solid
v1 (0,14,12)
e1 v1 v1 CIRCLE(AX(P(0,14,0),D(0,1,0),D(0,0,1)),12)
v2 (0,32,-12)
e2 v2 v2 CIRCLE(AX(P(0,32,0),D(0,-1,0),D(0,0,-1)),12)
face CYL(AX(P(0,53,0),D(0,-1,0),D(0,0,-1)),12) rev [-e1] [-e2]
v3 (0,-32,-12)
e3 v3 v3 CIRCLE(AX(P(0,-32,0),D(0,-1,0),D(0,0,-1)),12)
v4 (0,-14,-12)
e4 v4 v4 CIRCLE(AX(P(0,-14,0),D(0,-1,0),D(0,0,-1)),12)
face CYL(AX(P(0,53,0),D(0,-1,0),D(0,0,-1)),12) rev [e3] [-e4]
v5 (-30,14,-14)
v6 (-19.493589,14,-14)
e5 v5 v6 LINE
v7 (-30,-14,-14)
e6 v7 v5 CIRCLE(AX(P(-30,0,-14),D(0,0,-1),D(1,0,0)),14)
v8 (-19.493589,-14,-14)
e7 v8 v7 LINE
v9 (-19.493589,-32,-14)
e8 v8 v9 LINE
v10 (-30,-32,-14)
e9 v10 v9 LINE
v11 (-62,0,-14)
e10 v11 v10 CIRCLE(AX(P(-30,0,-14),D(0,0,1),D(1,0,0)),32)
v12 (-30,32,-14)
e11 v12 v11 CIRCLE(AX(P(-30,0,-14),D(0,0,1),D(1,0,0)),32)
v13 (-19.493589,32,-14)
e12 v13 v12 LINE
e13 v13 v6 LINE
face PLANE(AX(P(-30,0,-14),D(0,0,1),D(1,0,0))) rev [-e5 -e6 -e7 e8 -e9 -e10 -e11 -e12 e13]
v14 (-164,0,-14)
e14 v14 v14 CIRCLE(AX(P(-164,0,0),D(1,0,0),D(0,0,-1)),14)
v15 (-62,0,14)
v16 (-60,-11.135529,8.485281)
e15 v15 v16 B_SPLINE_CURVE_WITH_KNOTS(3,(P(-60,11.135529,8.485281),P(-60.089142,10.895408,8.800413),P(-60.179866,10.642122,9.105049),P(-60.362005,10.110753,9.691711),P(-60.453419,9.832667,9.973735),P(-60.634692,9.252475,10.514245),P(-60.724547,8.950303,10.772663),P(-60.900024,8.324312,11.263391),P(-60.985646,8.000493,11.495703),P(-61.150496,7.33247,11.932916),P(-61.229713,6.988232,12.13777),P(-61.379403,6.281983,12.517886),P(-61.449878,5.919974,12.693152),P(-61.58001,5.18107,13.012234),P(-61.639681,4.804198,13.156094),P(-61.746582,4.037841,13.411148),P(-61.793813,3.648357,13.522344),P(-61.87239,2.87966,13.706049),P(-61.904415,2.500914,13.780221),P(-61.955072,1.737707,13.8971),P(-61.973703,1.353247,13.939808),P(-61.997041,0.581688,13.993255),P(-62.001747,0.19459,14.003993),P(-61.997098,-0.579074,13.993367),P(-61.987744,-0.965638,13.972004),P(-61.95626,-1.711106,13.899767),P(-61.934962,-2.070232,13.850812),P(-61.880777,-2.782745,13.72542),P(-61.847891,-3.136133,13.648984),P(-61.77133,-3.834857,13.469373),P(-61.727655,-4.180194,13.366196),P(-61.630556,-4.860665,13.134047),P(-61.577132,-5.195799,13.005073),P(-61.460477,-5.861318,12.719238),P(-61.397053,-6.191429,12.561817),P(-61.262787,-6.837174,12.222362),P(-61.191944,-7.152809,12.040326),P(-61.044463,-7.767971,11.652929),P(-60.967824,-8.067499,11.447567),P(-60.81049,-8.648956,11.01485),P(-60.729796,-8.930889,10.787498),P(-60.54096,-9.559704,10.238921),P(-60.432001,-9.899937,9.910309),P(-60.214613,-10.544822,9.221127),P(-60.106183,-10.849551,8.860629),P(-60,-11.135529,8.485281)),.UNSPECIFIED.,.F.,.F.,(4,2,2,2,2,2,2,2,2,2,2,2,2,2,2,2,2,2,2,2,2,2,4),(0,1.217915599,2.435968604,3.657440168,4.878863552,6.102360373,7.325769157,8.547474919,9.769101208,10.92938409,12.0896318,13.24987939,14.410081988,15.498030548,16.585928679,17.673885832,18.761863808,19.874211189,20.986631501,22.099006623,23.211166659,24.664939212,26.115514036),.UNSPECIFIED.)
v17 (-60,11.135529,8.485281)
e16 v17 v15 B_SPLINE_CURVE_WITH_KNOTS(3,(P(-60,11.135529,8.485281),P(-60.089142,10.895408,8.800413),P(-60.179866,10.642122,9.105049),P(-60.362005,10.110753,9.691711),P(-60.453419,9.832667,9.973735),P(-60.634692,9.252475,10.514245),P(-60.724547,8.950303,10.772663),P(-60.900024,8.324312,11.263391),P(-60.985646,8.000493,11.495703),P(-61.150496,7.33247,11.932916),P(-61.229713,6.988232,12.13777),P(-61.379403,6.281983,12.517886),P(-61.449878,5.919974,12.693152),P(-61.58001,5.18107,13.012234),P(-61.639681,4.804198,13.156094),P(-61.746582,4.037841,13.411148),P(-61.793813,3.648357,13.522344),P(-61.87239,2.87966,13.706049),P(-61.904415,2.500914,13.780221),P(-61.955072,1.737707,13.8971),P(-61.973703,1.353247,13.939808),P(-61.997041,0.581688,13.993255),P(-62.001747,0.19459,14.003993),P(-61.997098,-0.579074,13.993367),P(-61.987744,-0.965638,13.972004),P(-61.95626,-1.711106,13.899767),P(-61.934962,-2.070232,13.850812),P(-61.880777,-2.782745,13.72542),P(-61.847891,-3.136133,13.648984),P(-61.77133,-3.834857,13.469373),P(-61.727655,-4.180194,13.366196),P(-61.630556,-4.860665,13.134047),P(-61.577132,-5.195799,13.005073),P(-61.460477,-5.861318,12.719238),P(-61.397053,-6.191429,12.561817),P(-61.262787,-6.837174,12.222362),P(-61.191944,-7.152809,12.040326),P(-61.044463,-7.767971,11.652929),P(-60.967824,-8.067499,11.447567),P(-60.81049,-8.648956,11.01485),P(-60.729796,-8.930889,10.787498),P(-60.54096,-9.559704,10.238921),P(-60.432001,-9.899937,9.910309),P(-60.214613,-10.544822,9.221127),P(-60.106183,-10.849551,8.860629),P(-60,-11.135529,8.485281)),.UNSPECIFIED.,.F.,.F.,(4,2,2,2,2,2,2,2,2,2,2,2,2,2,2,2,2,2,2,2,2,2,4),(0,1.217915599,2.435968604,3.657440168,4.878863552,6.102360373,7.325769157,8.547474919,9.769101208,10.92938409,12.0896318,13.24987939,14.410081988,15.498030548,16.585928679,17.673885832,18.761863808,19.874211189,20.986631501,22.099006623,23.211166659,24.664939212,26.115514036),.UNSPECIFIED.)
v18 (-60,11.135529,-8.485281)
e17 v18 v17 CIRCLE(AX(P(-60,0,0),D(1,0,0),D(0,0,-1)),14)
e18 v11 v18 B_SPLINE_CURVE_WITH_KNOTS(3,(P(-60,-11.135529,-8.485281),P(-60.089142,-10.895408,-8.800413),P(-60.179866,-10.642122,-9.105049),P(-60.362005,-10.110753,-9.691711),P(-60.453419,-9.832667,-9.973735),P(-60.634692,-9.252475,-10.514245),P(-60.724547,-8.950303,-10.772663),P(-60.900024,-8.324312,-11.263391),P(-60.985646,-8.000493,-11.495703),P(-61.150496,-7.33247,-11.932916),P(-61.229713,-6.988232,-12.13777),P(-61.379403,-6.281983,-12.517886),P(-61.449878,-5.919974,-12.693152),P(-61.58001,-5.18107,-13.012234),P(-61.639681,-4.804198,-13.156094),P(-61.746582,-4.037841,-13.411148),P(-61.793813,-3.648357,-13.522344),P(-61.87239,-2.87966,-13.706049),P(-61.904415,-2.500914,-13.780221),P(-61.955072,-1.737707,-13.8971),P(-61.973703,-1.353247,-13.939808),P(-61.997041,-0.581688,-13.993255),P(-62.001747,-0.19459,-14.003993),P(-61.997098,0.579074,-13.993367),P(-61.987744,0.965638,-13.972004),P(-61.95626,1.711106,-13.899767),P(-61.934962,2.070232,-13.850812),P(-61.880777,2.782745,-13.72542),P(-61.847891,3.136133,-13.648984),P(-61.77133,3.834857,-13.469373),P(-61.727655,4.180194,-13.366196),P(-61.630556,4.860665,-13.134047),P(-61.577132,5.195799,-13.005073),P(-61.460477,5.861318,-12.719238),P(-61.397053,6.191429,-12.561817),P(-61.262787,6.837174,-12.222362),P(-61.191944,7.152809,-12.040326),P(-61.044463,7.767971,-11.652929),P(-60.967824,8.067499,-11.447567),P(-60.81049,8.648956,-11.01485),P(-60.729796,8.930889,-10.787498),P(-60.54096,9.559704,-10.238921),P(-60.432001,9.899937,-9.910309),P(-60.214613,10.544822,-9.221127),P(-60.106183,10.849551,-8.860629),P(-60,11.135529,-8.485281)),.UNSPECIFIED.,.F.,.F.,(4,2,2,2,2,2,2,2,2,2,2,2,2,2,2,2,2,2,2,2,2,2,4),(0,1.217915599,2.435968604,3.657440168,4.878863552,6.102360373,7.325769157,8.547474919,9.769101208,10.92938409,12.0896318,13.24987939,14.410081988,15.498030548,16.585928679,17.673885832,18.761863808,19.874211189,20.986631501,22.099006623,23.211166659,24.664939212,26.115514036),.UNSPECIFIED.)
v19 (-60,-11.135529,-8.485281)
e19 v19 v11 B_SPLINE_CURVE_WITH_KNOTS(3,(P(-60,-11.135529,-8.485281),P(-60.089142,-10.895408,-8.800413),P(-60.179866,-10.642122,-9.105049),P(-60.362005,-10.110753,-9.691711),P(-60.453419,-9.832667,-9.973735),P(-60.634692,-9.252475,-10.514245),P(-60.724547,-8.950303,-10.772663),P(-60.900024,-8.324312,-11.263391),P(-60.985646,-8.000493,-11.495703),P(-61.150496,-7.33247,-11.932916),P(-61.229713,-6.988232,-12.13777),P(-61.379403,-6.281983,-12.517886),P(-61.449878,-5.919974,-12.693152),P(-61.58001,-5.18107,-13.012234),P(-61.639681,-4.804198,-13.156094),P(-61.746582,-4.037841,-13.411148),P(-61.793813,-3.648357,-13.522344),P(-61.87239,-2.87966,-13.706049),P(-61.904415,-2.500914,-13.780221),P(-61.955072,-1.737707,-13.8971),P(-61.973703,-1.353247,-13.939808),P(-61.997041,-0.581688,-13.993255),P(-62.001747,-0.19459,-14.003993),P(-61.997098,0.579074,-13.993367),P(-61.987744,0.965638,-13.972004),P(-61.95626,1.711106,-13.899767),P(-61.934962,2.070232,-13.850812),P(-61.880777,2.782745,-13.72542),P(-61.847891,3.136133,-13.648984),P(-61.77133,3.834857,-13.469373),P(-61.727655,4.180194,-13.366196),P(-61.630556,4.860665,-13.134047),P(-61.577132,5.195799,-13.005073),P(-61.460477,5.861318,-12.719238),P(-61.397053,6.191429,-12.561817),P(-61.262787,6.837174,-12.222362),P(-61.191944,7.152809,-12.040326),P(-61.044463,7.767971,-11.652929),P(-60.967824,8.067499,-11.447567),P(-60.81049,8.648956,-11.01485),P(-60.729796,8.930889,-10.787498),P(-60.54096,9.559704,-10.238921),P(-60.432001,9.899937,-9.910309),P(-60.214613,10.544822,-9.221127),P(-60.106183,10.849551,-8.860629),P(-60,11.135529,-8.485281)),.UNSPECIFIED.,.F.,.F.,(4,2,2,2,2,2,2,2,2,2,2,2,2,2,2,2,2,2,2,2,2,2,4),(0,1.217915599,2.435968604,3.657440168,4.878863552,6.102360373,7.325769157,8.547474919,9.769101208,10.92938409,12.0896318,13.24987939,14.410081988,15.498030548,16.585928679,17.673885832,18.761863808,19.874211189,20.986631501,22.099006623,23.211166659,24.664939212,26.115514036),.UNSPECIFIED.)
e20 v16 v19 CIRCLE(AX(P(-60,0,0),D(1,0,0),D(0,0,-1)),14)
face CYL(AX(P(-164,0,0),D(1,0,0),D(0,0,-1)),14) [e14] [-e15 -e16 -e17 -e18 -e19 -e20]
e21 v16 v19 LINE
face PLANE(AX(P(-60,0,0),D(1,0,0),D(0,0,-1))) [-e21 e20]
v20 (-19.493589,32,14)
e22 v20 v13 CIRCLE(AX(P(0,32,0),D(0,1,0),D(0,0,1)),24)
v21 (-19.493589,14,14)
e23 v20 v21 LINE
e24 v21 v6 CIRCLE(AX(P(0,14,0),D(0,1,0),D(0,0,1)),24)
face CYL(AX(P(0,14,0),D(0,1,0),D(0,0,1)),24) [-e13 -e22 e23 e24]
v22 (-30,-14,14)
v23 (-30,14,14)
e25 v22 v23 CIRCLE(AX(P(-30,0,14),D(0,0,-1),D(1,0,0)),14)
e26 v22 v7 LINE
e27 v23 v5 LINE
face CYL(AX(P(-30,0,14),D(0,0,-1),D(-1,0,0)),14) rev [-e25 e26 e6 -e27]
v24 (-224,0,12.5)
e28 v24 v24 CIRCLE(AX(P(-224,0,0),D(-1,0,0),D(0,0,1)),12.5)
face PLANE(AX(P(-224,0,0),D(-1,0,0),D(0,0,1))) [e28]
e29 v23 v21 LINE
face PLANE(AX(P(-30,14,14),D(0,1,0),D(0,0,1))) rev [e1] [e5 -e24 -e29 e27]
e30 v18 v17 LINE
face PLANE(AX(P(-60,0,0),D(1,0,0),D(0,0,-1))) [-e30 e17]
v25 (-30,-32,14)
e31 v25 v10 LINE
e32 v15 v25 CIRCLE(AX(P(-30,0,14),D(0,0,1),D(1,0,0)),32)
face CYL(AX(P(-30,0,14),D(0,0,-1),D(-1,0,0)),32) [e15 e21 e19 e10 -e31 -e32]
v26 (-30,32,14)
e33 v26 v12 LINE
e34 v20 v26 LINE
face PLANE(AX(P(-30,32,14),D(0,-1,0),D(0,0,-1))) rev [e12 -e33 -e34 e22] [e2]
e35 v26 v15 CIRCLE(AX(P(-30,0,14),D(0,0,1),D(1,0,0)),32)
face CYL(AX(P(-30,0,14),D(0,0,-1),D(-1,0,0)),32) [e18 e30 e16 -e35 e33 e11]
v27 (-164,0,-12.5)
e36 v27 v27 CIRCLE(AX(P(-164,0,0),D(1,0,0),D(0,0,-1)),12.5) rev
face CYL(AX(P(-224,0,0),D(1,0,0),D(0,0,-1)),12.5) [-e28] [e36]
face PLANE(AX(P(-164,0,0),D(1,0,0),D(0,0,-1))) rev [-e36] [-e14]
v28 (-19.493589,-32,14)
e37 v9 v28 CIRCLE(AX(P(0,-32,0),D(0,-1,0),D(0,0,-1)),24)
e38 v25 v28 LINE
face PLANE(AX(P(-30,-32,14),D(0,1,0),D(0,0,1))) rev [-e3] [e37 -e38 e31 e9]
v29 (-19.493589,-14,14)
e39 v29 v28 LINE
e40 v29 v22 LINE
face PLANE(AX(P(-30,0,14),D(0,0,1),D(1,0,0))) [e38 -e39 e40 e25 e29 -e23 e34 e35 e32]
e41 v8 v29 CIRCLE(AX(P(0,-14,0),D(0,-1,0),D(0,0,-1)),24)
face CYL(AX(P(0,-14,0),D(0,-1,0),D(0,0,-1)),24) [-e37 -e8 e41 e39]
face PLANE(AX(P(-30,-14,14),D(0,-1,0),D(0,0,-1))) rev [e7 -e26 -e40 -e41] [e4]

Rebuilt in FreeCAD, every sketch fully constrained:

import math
import FreeCAD as App
import Part
import Sketcher
from FreeCAD import Vector
Q = App.Units.Quantity

doc = App.newDocument("Part")
body = doc.addObject("PartDesign::Body", "Body")

# Sketch on XY plane
sketch1 = doc.addObject("Sketcher::SketchObject", "Sketch")
body.addObject(sketch1)
sketch1.AttachmentSupport = (doc.XY_Plane, [""])
sketch1.MapMode = "FlatFace"
sketch1.addGeometry([
    Part.LineSegment(Vector(30, 14, 0), Vector(30, 32, 0)),  # 0
    Part.LineSegment(Vector(30, 32, 0), Vector(-30, 32, 0)),  # 1
    Part.ArcOfCircle(Part.Circle(Vector(-30, 0, 0), Vector(0, 0, 1), 32), math.radians(90), math.radians(270)),  # 2
    Part.LineSegment(Vector(-30, -32, 0), Vector(30, -32, 0)),  # 3
    Part.LineSegment(Vector(30, -32, 0), Vector(30, -14, 0)),  # 4
    Part.LineSegment(Vector(30, -14, 0), Vector(-30, -14, 0)),  # 5
    Part.ArcOfCircle(Part.Circle(Vector(-30, 0, 0), Vector(0, 0, 1), 14), math.radians(90), math.radians(270)),  # 6
    Part.LineSegment(Vector(-30, 14, 0), Vector(30, 14, 0)),  # 7
], False)
sketch1.addConstraint([
    Sketcher.Constraint("Coincident", 0, 2, 1, 1),
    Sketcher.Constraint("Tangent", 1, 2, 2, 1),
    Sketcher.Constraint("Tangent", 2, 2, 3, 1),
    Sketcher.Constraint("Coincident", 3, 2, 4, 1),
    Sketcher.Constraint("Coincident", 4, 2, 5, 1),
    Sketcher.Constraint("Tangent", 5, 2, 6, 2),
    Sketcher.Constraint("Tangent", 6, 1, 7, 1),
    Sketcher.Constraint("Coincident", 7, 2, 0, 1),
    Sketcher.Constraint("Vertical", 0),
    Sketcher.Constraint("Horizontal", 1),
    Sketcher.Constraint("Horizontal", 3),
    Sketcher.Constraint("Vertical", 4),
    Sketcher.Constraint("Horizontal", 5),
    Sketcher.Constraint("Horizontal", 7),
    Sketcher.Constraint("Coincident", 6, 3, 2, 3),
    Sketcher.Constraint("Symmetric", 0, 2, 2, 2, -1, 1),
    Sketcher.Constraint("Vertical", 0, 2, 3, 2),
    Sketcher.Constraint("Radius", 2, Q("32 mm")),
    Sketcher.Constraint("Radius", 6, Q("14 mm")),
    Sketcher.Constraint("DistanceX", 1, 2, 1, 1, Q("60 mm")),
])
pad1 = doc.addObject("PartDesign::Pad", "Pad")
body.addObject(pad1)
pad1.Profile = sketch1
pad1.Length = 28
pad1.Midplane = True

# Sketch on YZ plane
sketch2 = doc.addObject("Sketcher::SketchObject", "Sketch001")
body.addObject(sketch2)
sketch2.AttachmentSupport = (doc.YZ_Plane, [""])
sketch2.MapMode = "FlatFace"
sketch2.AttachmentOffset = App.Placement(Vector(0, 0, -60), App.Rotation())
sketch2.addGeometry(Part.Circle(Vector(0, 0, 0), Vector(0, 0, 1), 14), False)
sketch2.addConstraint([
    Sketcher.Constraint("Coincident", 0, 3, -1, 1),
    Sketcher.Constraint("Diameter", 0, Q("28 mm")),
])
pad2 = doc.addObject("PartDesign::Pad", "Pad001")
body.addObject(pad2)
pad2.Profile = sketch2
pad2.Length = 104
pad2.Reversed = True

# Sketch on YZ plane
sketch3 = doc.addObject("Sketcher::SketchObject", "Sketch002")
body.addObject(sketch3)
sketch3.AttachmentSupport = (doc.YZ_Plane, [""])
sketch3.MapMode = "FlatFace"
sketch3.AttachmentOffset = App.Placement(Vector(0, 0, -164), App.Rotation())
sketch3.addGeometry(Part.Circle(Vector(0, 0, 0), Vector(0, 0, 1), 12), False)
sketch3.addConstraint([
    Sketcher.Constraint("Coincident", 0, 3, -1, 1),
    Sketcher.Constraint("Diameter", 0, Q("25 mm")),
])
pad3 = doc.addObject("PartDesign::Pad", "Pad002")
body.addObject(pad3)
pad3.Profile = sketch3
pad3.Length = 60
pad3.Reversed = True

# Sketch on XZ plane
sketch4 = doc.addObject("Sketcher::SketchObject", "Sketch003")
body.addObject(sketch4)
sketch4.AttachmentSupport = (doc.XZ_Plane, [""])
sketch4.MapMode = "FlatFace"
sketch4.AttachmentOffset = App.Placement(Vector(0, 0, -32), App.Rotation())
sketch4.addGeometry(Part.Circle(Vector(0, 0, 0), Vector(0, 0, 1), 24), False)
sketch4.addConstraint([
    Sketcher.Constraint("Coincident", 0, 3, -1, 1),
    Sketcher.Constraint("Diameter", 0, Q("48 mm")),
])
pad4 = doc.addObject("PartDesign::Pad", "Pad003")
body.addObject(pad4)
pad4.Profile = sketch4
pad4.Length = 18

# Sketch on XZ plane
sketch5 = doc.addObject("Sketcher::SketchObject", "Sketch004")
body.addObject(sketch5)
sketch5.AttachmentSupport = (doc.XZ_Plane, [""])
sketch5.MapMode = "FlatFace"
sketch5.AttachmentOffset = App.Placement(Vector(0, 0, 32), App.Rotation())
sketch5.addGeometry(Part.Circle(Vector(0, 0, 0), Vector(0, 0, 1), 24), False)
sketch5.addConstraint([
    Sketcher.Constraint("Coincident", 0, 3, -1, 1),
    Sketcher.Constraint("Diameter", 0, Q("48 mm")),
])
pad5 = doc.addObject("PartDesign::Pad", "Pad004")
body.addObject(pad5)
pad5.Profile = sketch5
pad5.Length = 18
pad5.Reversed = True

# Sketch on XZ plane
sketch6 = doc.addObject("Sketcher::SketchObject", "Sketch005")
body.addObject(sketch6)
sketch6.AttachmentSupport = (doc.XZ_Plane, [""])
sketch6.MapMode = "FlatFace"
sketch6.AttachmentOffset = App.Placement(Vector(0, 0, 32), App.Rotation())
sketch6.addGeometry([
    Part.LineSegment(Vector(19, -14, 0), Vector(30, -14, 0)),
    Part.LineSegment(Vector(30, -14, 0), Vector(30, 14, 0)),
    Part.LineSegment(Vector(30, 14, 0), Vector(19, 14, 0)),
    Part.ArcOfCircle(Part.Circle(Vector(0, 0, 0), Vector(0, 0, 1), 24), math.radians(-36), math.radians(36)),
], False)
sketch6.addConstraint([
    Sketcher.Constraint("Coincident", 0, 2, 1, 1),
    Sketcher.Constraint("Coincident", 1, 2, 2, 1),
    Sketcher.Constraint("Coincident", 2, 2, 3, 2),
    Sketcher.Constraint("Coincident", 3, 1, 0, 1),
    Sketcher.Constraint("Horizontal", 0),
    Sketcher.Constraint("Vertical", 1),
    Sketcher.Constraint("Horizontal", 2),
    Sketcher.Constraint("Coincident", 3, 3, -1, 1),
    Sketcher.Constraint("Vertical", 2, 2, 3, 1),
    Sketcher.Constraint("Radius", 3, Q("24 mm")),
    Sketcher.Constraint("DistanceY", 1, 1, 1, 2, Q("28 mm")),
    Sketcher.Constraint("DistanceX", -1, 1, 0, 2, Q("30 mm")),
])
pocket1 = doc.addObject("PartDesign::Pocket", "Pocket")
body.addObject(pocket1)
pocket1.Profile = sketch6
pocket1.Length = 85

# Sketch on XZ plane
sketch7 = doc.addObject("Sketcher::SketchObject", "Sketch006")
body.addObject(sketch7)
sketch7.AttachmentSupport = (doc.XZ_Plane, [""])
sketch7.MapMode = "FlatFace"
sketch7.AttachmentOffset = App.Placement(Vector(0, 0, 32), App.Rotation())
sketch7.addGeometry(Part.Circle(Vector(0, 0, 0), Vector(0, 0, 1), 12), False)
sketch7.addConstraint([
    Sketcher.Constraint("Coincident", 0, 3, -1, 1),
    Sketcher.Constraint("Diameter", 0, Q("24 mm")),
])
pocket2 = doc.addObject("PartDesign::Pocket", "Pocket001")
body.addObject(pocket2)
pocket2.Profile = sketch7
pocket2.Length = 85

doc.recompute()
